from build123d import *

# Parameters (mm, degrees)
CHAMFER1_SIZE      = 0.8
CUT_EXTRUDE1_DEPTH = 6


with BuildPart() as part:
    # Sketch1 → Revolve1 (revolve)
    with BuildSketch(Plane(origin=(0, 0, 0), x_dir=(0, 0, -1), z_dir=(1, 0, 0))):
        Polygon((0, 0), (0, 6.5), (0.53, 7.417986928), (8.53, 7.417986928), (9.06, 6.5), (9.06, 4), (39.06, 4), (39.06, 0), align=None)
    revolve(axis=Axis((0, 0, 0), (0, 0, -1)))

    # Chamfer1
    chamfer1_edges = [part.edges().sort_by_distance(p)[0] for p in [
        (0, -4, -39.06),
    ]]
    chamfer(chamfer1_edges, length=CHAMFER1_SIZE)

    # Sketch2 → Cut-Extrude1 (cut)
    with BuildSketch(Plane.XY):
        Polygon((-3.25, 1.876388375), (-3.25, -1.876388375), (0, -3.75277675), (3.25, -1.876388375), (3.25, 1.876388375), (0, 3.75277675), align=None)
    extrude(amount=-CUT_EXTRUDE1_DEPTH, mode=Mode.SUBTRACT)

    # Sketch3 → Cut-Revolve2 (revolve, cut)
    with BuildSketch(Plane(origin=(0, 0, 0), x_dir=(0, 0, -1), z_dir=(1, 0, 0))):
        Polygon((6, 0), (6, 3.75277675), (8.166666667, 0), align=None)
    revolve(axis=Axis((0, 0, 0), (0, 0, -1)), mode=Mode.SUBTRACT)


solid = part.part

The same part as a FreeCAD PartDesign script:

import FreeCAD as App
import Part
import Sketcher

V = App.Vector
Q = App.Units.Quantity


def edges_at(feature, points):
    """Names of the edges that pass closest to the given points."""
    edges = feature.Shape.Edges
    near = lambda p: min(range(len(edges)), key=lambda i: edges[i].distToShape(Part.Vertex(*p))[0])
    return sorted({f"Edge{near(p) + 1}" for p in points})

doc = App.newDocument("Part")
body = doc.addObject("PartDesign::Body", "Body")

# Sketch on YZ plane
sketch1 = doc.addObject("Sketcher::SketchObject", "Sketch")
body.addObject(sketch1)
sketch1.AttachmentSupport = (doc.YZ_Plane, [""])
sketch1.MapMode = "FlatFace"
sketch1.addGeometry([
    Part.LineSegment(V(6.5, 0, 0), V(0, 0, 0)),  # 0
    Part.LineSegment(V(0, 0, 0), V(0, -39.1, 0)),  # 1
    Part.LineSegment(V(0, -39.1, 0), V(4, -39.1, 0)),  # 2
    Part.LineSegment(V(4, -39.1, 0), V(4, -9.1, 0)),  # 3
    Part.LineSegment(V(4, -9.1, 0), V(6.5, -9.1, 0)),  # 4
    Part.LineSegment(V(6.5, -9.1, 0), V(7.4, -8.5, 0)),  # 5
    Part.LineSegment(V(7.4, -8.5, 0), V(7.4, -0.5, 0)),  # 6
    Part.LineSegment(V(7.4, -0.5, 0), V(6.5, 0, 0)),  # 7
], False)
sketch1.addConstraint([
    Sketcher.Constraint("Coincident", 0, 2, 1, 1),
    Sketcher.Constraint("Coincident", 1, 2, 2, 1),
    Sketcher.Constraint("Coincident", 2, 2, 3, 1),
    Sketcher.Constraint("Coincident", 3, 2, 4, 1),
    Sketcher.Constraint("Coincident", 4, 2, 5, 1),
    Sketcher.Constraint("Coincident", 5, 2, 6, 1),
    Sketcher.Constraint("Coincident", 6, 2, 7, 1),
    Sketcher.Constraint("Coincident", 7, 2, 0, 1),
    Sketcher.Constraint("Horizontal", 0),
    Sketcher.Constraint("Vertical", 1),
    Sketcher.Constraint("Horizontal", 2),
    Sketcher.Constraint("Vertical", 3),
    Sketcher.Constraint("Horizontal", 4),
    Sketcher.Constraint("Vertical", 6),
    Sketcher.Constraint("Coincident", 0, 2, -1, 1),
    Sketcher.Constraint("Vertical", 4, 2, 7, 2),
    Sketcher.Constraint("Equal", 5, 7),
    Sketcher.Constraint("DistanceX", 2, 1, 2, 2, Q("4 mm")),
    Sketcher.Constraint("DistanceY", 3, 1, 3, 2, Q("30 mm")),
    Sketcher.Constraint("DistanceY", 6, 1, 6, 2, Q("8 mm")),
    Sketcher.Constraint("Angle", 5, Q("30 deg")),
    Sketcher.Constraint("DistanceX", 0, 2, 0, 1, Q("6.5 mm")),
    Sketcher.Constraint("DistanceY", 1, 2, 1, 1, Q("39.06 mm")),
])
revolution = doc.addObject("PartDesign::Revolution", "Revolution")
body.addObject(revolution)
revolution.Profile = sketch1
revolution.ReferenceAxis = (sketch1, ["V_Axis"])
revolution.Angle = 360
doc.recompute()

chamfer = doc.addObject("PartDesign::Chamfer", "Chamfer")
body.addObject(chamfer)
chamfer.Base = (revolution, edges_at(revolution, [(0, -4, -39.06)]))
chamfer.Size = 0.8

# Sketch on XY plane
sketch2 = doc.addObject("Sketcher::SketchObject", "Sketch001")
body.addObject(sketch2)
sketch2.AttachmentSupport = (doc.XY_Plane, [""])
sketch2.MapMode = "FlatFace"
sketch2.addGeometry([
    Part.LineSegment(V(-3.2, 1.9, 0), V(-3.2, -1.9, 0)),  # 0
    Part.LineSegment(V(-3.2, -1.9, 0), V(0, -3.8, 0)),  # 1
    Part.LineSegment(V(0, -3.8, 0), V(3.2, -1.9, 0)),  # 2
    Part.LineSegment(V(3.2, -1.9, 0), V(3.2, 1.9, 0)),  # 3
    Part.LineSegment(V(3.2, 1.9, 0), V(0, 3.8, 0)),  # 4
    Part.LineSegment(V(0, 3.8, 0), V(-3.2, 1.9, 0)),  # 5
], False)
sketch2.addConstraint([
    Sketcher.Constraint("Coincident", 0, 2, 1, 1),
    Sketcher.Constraint("Coincident", 1, 2, 2, 1),
    Sketcher.Constraint("Coincident", 2, 2, 3, 1),
    Sketcher.Constraint("Coincident", 3, 2, 4, 1),
    Sketcher.Constraint("Coincident", 4, 2, 5, 1),
    Sketcher.Constraint("Coincident", 5, 2, 0, 1),
    Sketcher.Constraint("Vertical", 0),
    Sketcher.Constraint("Vertical", 3),
    Sketcher.Constraint("Symmetric", 0, 2, 3, 2, -1, 1),
    Sketcher.Constraint("Symmetric", 1, 2, 4, 2, -1, 1),
    Sketcher.Constraint("PointOnObject", 1, 2, -2),
    Sketcher.Constraint("Parallel", 2, 5),
    Sketcher.Constraint("Horizontal", 0, 2, 2, 2),
    Sketcher.Constraint("Angle", 1, Q("-30 deg")),
    Sketcher.Constraint("DistanceX", 0, 2, 2, 2, Q("6.5 mm")),
    Sketcher.Constraint("DistanceY", 0, 2, 0, 1, Q("3.752777 mm")),
])
pocket1 = doc.addObject("PartDesign::Pocket", "Pocket")
body.addObject(pocket1)
pocket1.Profile = sketch2
pocket1.Length = 6

# Sketch on YZ plane
sketch3 = doc.addObject("Sketcher::SketchObject", "Sketch002")
body.addObject(sketch3)
sketch3.AttachmentSupport = (doc.YZ_Plane, [""])
sketch3.MapMode = "FlatFace"
sketch3.addGeometry([
    Part.LineSegment(V(3.8, -6, 0), V(0, -6, 0)),
    Part.LineSegment(V(0, -6, 0), V(0, -8.2, 0)),
    Part.LineSegment(V(0, -8.2, 0), V(3.8, -6, 0)),
], False)
sketch3.addConstraint([
    Sketcher.Constraint("Coincident", 0, 2, 1, 1),
    Sketcher.Constraint("Coincident", 1, 2, 2, 1),
    Sketcher.Constraint("Coincident", 2, 2, 0, 1),
    Sketcher.Constraint("Horizontal", 0),
    Sketcher.Constraint("Vertical", 1),
    Sketcher.Constraint("PointOnObject", 0, 2, -2),
    Sketcher.Constraint("Angle", 2, Q("30 deg")),
    Sketcher.Constraint("DistanceY", 0, 2, -1, 1, Q("6 mm")),
    Sketcher.Constraint("DistanceX", 0, 2, 0, 1, Q("3.752777 mm")),
])
groove = doc.addObject("PartDesign::Groove", "Groove")
body.addObject(groove)
groove.Profile = sketch3
groove.ReferenceAxis = (sketch3, ["V_Axis"])
groove.Angle = 360

doc.recompute()
